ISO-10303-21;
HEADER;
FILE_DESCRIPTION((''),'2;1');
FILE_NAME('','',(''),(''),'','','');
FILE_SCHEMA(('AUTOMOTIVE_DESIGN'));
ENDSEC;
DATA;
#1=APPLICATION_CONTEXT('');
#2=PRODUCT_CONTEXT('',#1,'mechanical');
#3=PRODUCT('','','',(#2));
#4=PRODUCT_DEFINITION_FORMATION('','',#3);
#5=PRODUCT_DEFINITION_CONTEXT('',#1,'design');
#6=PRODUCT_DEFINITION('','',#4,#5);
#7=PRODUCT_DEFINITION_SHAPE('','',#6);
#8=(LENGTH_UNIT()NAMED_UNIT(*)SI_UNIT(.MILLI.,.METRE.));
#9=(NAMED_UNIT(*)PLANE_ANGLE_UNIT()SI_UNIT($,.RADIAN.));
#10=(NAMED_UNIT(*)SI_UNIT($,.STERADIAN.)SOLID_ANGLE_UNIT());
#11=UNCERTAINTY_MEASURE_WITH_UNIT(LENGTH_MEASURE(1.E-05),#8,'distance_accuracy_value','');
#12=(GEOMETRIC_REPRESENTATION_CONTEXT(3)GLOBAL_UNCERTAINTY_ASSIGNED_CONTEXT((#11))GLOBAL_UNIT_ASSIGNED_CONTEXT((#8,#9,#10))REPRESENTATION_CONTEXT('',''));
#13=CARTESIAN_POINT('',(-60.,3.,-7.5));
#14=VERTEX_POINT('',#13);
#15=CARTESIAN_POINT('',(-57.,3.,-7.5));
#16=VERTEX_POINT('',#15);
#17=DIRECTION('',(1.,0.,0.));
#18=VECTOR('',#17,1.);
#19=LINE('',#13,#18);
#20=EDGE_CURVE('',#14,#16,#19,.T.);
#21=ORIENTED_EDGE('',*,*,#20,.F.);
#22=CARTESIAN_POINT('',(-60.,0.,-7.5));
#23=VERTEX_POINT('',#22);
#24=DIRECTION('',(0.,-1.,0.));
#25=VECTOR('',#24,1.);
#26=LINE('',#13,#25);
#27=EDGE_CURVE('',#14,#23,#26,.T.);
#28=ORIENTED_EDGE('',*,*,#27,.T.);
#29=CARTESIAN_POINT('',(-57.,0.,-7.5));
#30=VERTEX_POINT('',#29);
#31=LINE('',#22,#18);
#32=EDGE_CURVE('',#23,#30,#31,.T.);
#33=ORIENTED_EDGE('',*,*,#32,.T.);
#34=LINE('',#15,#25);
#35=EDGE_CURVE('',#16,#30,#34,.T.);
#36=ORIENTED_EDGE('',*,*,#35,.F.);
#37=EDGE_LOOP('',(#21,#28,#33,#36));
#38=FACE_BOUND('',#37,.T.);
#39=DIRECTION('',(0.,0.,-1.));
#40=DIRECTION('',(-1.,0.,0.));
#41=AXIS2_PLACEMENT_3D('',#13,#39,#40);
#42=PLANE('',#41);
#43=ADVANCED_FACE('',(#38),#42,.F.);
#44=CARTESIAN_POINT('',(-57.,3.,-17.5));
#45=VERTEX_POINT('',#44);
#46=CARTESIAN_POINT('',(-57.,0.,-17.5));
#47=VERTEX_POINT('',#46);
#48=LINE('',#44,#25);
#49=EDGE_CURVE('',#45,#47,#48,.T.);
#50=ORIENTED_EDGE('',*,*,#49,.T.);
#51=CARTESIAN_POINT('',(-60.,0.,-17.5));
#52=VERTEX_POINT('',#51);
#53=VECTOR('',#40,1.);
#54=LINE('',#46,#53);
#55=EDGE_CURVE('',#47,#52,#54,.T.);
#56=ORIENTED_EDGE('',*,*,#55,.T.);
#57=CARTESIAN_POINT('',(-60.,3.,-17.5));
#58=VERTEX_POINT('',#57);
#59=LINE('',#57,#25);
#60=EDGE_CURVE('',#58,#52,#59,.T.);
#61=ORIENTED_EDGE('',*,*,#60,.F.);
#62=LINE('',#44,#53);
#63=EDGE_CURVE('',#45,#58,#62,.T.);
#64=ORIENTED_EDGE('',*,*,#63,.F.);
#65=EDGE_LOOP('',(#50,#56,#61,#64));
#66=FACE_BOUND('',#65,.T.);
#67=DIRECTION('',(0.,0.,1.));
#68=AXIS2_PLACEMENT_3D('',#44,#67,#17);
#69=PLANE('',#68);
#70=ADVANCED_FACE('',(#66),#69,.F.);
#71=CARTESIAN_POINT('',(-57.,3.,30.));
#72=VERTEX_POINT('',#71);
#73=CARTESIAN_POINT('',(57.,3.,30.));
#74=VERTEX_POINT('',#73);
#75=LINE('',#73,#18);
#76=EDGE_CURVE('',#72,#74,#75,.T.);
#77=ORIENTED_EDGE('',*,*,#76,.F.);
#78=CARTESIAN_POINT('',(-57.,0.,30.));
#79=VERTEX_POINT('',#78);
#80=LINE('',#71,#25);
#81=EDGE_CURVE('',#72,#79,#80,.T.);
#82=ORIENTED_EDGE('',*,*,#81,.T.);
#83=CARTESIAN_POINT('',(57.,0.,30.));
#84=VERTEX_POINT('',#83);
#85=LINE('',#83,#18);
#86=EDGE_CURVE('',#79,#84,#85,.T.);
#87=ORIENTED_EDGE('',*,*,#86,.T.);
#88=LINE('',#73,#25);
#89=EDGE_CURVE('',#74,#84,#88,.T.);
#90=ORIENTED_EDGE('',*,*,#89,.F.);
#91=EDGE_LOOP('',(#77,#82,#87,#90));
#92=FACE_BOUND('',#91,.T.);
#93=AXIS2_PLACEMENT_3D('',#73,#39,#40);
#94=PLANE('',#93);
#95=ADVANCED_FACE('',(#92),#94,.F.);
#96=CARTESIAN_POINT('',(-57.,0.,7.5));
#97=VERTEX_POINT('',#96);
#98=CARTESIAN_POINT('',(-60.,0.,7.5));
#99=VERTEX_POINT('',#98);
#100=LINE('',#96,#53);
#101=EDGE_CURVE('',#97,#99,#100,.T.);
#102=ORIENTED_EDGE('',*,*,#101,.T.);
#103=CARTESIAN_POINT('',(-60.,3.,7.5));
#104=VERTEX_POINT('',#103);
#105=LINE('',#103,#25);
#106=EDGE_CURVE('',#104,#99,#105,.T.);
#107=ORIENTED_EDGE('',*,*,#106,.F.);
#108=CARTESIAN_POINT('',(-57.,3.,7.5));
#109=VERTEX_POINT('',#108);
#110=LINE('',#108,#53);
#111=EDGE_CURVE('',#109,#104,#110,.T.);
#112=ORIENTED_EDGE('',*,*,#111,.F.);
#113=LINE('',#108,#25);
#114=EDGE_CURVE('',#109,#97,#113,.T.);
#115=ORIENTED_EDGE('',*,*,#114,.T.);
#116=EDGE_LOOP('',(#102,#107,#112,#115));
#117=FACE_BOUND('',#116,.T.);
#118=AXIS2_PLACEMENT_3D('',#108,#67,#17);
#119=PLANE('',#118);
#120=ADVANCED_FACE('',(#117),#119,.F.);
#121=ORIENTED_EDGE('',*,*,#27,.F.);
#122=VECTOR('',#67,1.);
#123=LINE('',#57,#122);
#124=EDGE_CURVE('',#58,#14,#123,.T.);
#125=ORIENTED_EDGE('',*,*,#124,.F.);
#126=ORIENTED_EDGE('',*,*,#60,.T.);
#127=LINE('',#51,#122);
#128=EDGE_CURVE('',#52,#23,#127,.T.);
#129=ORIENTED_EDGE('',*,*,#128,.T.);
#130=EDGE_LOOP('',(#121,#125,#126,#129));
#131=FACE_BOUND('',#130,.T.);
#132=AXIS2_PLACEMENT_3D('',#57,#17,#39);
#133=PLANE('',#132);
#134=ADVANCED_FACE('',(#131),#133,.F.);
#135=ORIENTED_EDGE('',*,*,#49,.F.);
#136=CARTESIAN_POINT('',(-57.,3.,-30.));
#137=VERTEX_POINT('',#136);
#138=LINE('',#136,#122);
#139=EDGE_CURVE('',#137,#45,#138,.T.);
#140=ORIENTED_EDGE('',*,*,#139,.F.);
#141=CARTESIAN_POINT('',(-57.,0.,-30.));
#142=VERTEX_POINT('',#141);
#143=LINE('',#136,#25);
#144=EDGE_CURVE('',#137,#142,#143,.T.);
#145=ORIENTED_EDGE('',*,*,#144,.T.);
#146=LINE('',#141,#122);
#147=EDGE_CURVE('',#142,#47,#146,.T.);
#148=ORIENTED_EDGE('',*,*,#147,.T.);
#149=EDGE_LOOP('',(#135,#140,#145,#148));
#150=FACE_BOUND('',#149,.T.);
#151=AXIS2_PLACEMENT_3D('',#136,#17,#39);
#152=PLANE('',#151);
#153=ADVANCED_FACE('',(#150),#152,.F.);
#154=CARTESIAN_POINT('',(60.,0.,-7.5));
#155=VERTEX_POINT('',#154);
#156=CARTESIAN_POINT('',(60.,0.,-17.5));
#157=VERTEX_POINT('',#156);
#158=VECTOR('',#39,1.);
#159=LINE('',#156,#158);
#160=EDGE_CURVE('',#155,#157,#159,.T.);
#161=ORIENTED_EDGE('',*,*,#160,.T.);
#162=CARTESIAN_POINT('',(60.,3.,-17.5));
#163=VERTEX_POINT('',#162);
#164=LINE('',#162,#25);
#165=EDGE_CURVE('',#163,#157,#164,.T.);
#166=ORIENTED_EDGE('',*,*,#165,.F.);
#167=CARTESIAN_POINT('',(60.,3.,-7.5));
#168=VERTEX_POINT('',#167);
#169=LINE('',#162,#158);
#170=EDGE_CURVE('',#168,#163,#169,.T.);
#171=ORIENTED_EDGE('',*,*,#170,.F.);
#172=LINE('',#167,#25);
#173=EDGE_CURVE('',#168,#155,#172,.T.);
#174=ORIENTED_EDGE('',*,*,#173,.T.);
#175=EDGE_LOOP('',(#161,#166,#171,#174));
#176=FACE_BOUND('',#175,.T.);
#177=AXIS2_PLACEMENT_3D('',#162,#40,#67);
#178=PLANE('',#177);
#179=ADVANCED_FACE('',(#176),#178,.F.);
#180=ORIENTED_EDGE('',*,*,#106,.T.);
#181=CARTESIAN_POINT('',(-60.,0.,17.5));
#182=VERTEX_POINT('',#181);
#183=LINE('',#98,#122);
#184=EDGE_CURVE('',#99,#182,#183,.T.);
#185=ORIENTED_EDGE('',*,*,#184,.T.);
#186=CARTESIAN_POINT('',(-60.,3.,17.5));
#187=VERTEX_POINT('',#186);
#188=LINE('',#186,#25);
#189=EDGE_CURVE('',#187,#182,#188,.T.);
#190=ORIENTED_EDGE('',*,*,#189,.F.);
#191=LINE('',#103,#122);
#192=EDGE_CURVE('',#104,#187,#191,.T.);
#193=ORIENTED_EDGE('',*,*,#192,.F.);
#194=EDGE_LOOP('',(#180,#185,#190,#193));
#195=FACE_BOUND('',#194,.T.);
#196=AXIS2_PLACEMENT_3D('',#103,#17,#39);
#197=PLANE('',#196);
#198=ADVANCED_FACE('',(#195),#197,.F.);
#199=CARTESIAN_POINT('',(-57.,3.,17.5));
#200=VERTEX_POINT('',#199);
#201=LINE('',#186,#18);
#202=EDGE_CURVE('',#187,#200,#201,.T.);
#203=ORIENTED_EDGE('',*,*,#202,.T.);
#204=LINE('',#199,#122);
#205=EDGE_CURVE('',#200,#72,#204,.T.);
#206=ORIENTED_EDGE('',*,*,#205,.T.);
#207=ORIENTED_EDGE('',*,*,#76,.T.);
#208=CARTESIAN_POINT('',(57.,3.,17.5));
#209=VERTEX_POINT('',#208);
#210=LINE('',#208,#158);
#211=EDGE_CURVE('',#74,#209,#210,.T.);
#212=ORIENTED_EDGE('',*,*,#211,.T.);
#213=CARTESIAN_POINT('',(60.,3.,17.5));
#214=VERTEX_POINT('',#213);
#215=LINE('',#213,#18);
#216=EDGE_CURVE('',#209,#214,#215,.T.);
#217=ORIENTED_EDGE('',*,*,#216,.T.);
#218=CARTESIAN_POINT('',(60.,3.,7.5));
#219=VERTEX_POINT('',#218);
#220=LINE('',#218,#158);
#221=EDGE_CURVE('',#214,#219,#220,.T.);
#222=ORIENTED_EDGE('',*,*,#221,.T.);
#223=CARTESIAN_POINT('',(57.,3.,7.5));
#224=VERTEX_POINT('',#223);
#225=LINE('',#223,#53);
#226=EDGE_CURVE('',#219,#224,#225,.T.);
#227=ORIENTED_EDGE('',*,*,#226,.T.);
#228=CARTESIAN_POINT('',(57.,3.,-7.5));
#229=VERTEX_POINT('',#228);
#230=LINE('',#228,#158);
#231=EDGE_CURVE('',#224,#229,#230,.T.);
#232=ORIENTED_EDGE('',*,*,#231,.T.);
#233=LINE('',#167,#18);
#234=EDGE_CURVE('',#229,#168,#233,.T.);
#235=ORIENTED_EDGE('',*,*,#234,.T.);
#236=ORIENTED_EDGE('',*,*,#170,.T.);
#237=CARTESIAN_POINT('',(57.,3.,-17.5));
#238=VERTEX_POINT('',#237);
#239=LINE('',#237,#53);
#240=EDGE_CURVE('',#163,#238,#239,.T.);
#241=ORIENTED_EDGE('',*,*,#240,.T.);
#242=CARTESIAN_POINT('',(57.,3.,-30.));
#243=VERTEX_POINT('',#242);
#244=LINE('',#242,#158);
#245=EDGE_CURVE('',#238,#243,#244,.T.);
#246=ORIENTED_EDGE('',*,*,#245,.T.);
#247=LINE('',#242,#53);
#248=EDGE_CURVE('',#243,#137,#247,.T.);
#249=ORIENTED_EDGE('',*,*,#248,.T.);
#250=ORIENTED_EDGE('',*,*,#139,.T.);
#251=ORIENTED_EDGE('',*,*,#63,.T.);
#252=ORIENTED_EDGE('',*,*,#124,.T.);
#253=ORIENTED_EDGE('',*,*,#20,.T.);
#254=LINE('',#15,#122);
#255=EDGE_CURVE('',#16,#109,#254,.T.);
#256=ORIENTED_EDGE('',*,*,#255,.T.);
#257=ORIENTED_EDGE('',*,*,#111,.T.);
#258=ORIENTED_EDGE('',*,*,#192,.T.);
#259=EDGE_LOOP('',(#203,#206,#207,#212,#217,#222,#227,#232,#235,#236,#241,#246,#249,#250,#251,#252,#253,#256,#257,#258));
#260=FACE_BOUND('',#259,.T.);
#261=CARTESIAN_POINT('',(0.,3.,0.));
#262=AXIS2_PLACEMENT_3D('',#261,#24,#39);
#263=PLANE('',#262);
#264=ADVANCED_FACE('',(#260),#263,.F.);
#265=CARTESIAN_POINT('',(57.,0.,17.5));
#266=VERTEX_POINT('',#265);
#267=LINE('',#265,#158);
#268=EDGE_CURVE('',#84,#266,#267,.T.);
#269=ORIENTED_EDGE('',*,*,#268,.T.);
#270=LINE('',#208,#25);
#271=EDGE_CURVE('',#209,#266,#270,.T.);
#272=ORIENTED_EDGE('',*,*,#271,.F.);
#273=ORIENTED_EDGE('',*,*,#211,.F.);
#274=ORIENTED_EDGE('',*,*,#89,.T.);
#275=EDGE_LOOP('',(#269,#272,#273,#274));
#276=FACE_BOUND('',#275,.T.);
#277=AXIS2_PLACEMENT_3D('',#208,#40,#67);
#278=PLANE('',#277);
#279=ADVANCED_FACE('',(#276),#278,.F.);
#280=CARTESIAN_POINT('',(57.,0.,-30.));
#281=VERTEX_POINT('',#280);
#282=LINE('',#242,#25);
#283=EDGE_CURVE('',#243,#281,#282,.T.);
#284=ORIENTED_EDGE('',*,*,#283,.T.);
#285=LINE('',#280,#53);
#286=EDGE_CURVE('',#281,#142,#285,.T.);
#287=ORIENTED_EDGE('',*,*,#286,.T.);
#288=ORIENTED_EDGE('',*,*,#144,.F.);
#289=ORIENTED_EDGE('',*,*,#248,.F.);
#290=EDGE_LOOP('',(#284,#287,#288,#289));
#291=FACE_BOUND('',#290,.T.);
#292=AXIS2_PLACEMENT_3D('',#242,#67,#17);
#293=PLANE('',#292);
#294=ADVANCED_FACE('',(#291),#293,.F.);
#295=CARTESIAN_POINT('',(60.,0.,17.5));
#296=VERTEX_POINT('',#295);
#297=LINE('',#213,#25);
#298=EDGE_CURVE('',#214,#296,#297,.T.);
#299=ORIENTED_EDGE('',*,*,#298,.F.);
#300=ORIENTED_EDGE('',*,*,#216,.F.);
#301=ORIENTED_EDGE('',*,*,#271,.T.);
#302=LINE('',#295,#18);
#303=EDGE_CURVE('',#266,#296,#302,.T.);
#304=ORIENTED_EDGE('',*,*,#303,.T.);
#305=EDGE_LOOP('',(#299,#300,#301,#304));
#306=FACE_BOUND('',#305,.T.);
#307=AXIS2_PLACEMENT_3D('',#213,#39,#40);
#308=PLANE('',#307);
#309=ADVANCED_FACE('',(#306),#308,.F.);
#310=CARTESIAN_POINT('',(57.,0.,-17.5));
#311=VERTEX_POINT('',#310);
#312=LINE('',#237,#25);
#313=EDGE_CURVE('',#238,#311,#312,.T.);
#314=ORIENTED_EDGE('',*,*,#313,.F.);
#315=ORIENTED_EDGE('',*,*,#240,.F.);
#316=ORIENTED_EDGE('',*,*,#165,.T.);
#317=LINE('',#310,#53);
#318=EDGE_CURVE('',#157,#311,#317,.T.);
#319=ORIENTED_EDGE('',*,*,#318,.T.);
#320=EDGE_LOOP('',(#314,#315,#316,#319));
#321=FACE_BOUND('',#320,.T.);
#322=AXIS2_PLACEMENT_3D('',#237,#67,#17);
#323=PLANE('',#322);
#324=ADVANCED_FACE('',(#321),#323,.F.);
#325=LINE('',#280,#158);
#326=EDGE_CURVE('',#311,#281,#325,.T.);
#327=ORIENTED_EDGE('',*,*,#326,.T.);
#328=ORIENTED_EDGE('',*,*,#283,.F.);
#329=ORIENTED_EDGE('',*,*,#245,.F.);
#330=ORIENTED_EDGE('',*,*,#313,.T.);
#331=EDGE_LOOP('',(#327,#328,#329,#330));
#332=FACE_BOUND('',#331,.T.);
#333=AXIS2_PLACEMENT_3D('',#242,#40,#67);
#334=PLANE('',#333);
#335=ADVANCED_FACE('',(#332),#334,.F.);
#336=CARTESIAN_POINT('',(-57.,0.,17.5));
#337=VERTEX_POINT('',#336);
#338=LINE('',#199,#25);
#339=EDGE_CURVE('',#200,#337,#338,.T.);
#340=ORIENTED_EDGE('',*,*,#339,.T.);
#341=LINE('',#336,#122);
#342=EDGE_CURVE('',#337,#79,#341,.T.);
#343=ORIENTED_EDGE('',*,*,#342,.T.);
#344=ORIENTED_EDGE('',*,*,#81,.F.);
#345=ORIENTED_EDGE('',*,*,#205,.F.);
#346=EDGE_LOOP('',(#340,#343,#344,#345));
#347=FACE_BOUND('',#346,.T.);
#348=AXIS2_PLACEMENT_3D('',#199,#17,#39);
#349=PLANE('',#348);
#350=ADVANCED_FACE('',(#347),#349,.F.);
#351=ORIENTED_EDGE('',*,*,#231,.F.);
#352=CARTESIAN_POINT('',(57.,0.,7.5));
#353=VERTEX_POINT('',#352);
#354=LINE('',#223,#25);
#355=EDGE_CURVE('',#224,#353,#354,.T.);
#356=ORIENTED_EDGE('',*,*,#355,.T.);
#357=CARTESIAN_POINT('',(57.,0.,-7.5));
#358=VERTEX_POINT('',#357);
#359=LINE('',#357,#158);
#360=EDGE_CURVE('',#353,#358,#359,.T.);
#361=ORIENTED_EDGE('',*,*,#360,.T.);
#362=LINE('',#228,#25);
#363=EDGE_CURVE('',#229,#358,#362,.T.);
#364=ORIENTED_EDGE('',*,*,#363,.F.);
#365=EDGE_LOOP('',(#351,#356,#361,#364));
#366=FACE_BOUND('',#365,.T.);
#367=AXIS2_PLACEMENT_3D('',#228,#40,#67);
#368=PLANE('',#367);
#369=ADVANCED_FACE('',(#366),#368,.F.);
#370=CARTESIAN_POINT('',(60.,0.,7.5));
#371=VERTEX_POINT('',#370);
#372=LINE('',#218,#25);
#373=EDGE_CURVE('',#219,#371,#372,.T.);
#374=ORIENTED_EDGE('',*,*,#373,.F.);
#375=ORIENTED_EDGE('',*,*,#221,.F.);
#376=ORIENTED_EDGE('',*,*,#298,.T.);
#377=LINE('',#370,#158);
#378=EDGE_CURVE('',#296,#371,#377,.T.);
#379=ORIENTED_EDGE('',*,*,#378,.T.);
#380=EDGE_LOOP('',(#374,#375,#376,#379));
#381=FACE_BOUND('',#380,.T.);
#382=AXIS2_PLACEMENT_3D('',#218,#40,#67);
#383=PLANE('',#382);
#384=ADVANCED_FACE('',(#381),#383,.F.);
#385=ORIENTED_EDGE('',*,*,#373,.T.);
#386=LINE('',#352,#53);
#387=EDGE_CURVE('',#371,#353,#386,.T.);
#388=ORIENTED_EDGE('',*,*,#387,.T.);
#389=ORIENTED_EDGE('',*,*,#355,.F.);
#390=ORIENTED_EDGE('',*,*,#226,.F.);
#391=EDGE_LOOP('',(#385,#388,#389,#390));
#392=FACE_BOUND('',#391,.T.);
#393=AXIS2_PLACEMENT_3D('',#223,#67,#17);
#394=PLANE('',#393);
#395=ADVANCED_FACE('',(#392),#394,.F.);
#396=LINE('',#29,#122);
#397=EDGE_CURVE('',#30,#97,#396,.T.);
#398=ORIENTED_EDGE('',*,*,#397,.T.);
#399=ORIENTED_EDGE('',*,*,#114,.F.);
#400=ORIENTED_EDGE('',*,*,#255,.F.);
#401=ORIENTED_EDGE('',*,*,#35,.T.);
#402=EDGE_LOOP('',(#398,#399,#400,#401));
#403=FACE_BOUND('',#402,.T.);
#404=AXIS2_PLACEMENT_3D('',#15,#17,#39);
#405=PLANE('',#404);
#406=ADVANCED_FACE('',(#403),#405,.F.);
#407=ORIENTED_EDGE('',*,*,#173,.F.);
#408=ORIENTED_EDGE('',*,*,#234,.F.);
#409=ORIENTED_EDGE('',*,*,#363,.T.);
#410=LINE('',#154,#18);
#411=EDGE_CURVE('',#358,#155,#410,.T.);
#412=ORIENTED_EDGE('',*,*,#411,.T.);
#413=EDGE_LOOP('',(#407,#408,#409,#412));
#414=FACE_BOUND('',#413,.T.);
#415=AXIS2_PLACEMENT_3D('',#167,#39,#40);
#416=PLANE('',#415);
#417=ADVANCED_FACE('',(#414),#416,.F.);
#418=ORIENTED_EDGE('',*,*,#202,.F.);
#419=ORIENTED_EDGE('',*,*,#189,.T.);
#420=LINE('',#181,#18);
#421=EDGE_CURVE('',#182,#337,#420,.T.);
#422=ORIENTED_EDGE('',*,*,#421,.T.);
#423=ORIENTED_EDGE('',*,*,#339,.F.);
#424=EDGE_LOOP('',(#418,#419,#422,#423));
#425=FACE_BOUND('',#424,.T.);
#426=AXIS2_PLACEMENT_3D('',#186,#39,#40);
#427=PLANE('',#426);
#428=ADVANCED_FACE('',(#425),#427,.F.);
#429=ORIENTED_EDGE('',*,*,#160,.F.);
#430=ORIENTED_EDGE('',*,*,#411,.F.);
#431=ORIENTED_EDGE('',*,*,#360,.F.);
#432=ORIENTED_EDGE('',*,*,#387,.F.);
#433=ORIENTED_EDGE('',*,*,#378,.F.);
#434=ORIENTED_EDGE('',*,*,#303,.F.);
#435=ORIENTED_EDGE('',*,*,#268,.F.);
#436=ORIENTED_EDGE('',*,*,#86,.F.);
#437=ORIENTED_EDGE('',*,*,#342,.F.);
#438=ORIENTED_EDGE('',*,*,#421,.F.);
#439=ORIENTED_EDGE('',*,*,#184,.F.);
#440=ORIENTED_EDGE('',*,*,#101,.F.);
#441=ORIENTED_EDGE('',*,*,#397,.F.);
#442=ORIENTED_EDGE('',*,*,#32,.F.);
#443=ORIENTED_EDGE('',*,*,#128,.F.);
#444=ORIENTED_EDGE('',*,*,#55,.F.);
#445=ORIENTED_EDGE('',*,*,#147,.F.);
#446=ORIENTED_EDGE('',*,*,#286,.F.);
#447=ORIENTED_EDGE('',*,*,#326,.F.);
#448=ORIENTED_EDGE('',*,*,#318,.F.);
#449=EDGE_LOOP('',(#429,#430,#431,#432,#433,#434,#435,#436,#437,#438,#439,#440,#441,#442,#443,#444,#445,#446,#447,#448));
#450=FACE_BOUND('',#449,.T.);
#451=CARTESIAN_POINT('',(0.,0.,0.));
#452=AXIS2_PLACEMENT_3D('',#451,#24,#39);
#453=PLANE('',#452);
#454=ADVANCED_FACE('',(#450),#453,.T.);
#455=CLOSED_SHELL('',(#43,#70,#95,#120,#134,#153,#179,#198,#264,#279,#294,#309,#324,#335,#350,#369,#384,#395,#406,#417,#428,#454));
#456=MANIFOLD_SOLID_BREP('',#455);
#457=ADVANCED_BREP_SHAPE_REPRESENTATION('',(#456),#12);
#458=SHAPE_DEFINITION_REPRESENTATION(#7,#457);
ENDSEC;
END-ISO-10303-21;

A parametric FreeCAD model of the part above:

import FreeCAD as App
import Part
import Sketcher
Q = App.Units.Quantity

doc = App.newDocument("Part")
params = doc.addObject("Spreadsheet::Sheet", "Params")
for row, (alias, value) in enumerate([
    ("sketch1_width", "3 mm"),
    ("sketch1_width2", "114 mm"),
    ("sketch1_height", "10 mm"),
    ("sketch1_height2", "15 mm"),
    ("sketch1_height3", "12.5 mm"),
    ("pad1_length", "3 mm"),
], start=1):
    params.set(f"A{row}", alias)
    params.set(f"B{row}", "=" + value)
    params.setAlias(f"B{row}", alias)

body = doc.addObject("PartDesign::Body", "Body")

# Sketch on XZ plane
sketch1 = body.newObject("Sketcher::SketchObject", "Sketch")
sketch1.AttachmentSupport = (doc.getObject("XZ_Plane"), [""])
sketch1.MapMode = "FlatFace"
sketch1.addGeometry([
    Part.LineSegment(App.Vector(-57, -17.5, 0), App.Vector(-60, -17.5, 0)),  # 0
    Part.LineSegment(App.Vector(-60, -17.5, 0), App.Vector(-60, -7.5, 0)),  # 1
    Part.LineSegment(App.Vector(-60, -7.5, 0), App.Vector(-57, -7.5, 0)),  # 2
    Part.LineSegment(App.Vector(-57, -7.5, 0), App.Vector(-57, 7.5, 0)),  # 3
    Part.LineSegment(App.Vector(-57, 7.5, 0), App.Vector(-60, 7.5, 0)),  # 4
    Part.LineSegment(App.Vector(-60, 7.5, 0), App.Vector(-60, 17.5, 0)),  # 5
    Part.LineSegment(App.Vector(-60, 17.5, 0), App.Vector(-57, 17.5, 0)),  # 6
    Part.LineSegment(App.Vector(-57, 17.5, 0), App.Vector(-57, 30, 0)),  # 7
    Part.LineSegment(App.Vector(-57, 30, 0), App.Vector(57, 30, 0)),  # 8
    Part.LineSegment(App.Vector(57, 30, 0), App.Vector(57, 17.5, 0)),  # 9
    Part.LineSegment(App.Vector(57, 17.5, 0), App.Vector(60, 17.5, 0)),  # 10
    Part.LineSegment(App.Vector(60, 17.5, 0), App.Vector(60, 7.5, 0)),  # 11
    Part.LineSegment(App.Vector(60, 7.5, 0), App.Vector(57, 7.5, 0)),  # 12
    Part.LineSegment(App.Vector(57, 7.5, 0), App.Vector(57, -7.5, 0)),  # 13
    Part.LineSegment(App.Vector(57, -7.5, 0), App.Vector(60, -7.5, 0)),  # 14
    Part.LineSegment(App.Vector(60, -7.5, 0), App.Vector(60, -17.5, 0)),  # 15
    Part.LineSegment(App.Vector(60, -17.5, 0), App.Vector(57, -17.5, 0)),  # 16
    Part.LineSegment(App.Vector(57, -17.5, 0), App.Vector(57, -30, 0)),  # 17
    Part.LineSegment(App.Vector(57, -30, 0), App.Vector(-57, -30, 0)),  # 18
    Part.LineSegment(App.Vector(-57, -30, 0), App.Vector(-57, -17.5, 0)),  # 19
], False)
sketch1.addConstraint([
    Sketcher.Constraint("Coincident", 0, 2, 1, 1),
    Sketcher.Constraint("Coincident", 1, 2, 2, 1),
    Sketcher.Constraint("Coincident", 2, 2, 3, 1),
    Sketcher.Constraint("Coincident", 3, 2, 4, 1),
    Sketcher.Constraint("Coincident", 4, 2, 5, 1),
    Sketcher.Constraint("Coincident", 5, 2, 6, 1),
    Sketcher.Constraint("Coincident", 6, 2, 7, 1),
    Sketcher.Constraint("Coincident", 7, 2, 8, 1),
    Sketcher.Constraint("Coincident", 8, 2, 9, 1),
    Sketcher.Constraint("Coincident", 9, 2, 10, 1),
    Sketcher.Constraint("Coincident", 10, 2, 11, 1),
    Sketcher.Constraint("Coincident", 11, 2, 12, 1),
    Sketcher.Constraint("Coincident", 12, 2, 13, 1),
    Sketcher.Constraint("Coincident", 13, 2, 14, 1),
    Sketcher.Constraint("Coincident", 14, 2, 15, 1),
    Sketcher.Constraint("Coincident", 15, 2, 16, 1),
    Sketcher.Constraint("Coincident", 16, 2, 17, 1),
    Sketcher.Constraint("Coincident", 17, 2, 18, 1),
    Sketcher.Constraint("Coincident", 18, 2, 19, 1),
    Sketcher.Constraint("Coincident", 19, 2, 0, 1),
    Sketcher.Constraint("Horizontal", 0),
    Sketcher.Constraint("Vertical", 1),
    Sketcher.Constraint("Horizontal", 2),
    Sketcher.Constraint("Vertical", 3),
    Sketcher.Constraint("Horizontal", 4),
    Sketcher.Constraint("Vertical", 5),
    Sketcher.Constraint("Horizontal", 6),
    Sketcher.Constraint("Vertical", 7),
    Sketcher.Constraint("Horizontal", 8),
    Sketcher.Constraint("Vertical", 9),
    Sketcher.Constraint("Horizontal", 10),
    Sketcher.Constraint("Vertical", 11),
    Sketcher.Constraint("Horizontal", 12),
    Sketcher.Constraint("Vertical", 13),
    Sketcher.Constraint("Horizontal", 14),
    Sketcher.Constraint("Vertical", 15),
    Sketcher.Constraint("Horizontal", 16),
    Sketcher.Constraint("Vertical", 17),
    Sketcher.Constraint("Horizontal", 18),
    Sketcher.Constraint("Vertical", 19),
    Sketcher.Constraint("Symmetric", 0, 2, 10, 2, -1, 1),
    Sketcher.Constraint("Symmetric", 2, 2, 12, 2, -1, 1),
    Sketcher.Constraint("Symmetric", 4, 2, 14, 2, -1, 1),
    Sketcher.Constraint("Symmetric", 6, 2, 16, 2, -1, 1),
    Sketcher.Constraint("Symmetric", 8, 2, 18, 2, -1, 1),
    Sketcher.Constraint("Symmetric", 6, 2, 9, 2, -2),
    Sketcher.Constraint("Symmetric", 4, 2, 11, 2, -2),
    Sketcher.Constraint("Vertical", 3, 2, 6, 2),
    Sketcher.Constraint("DistanceX", 0, 2, 0, 1, Q("3 mm")),
    Sketcher.Constraint("DistanceX", 8, 1, 8, 2, Q("114 mm")),
    Sketcher.Constraint("DistanceY", 1, 1, 1, 2, Q("10 mm")),
    Sketcher.Constraint("DistanceY", 3, 1, 3, 2, Q("15 mm")),
    Sketcher.Constraint("DistanceY", 7, 1, 7, 2, Q("12.5 mm")),
])
sketch1.setExpression("Constraints[48]", "Params.sketch1_width")
sketch1.setExpression("Constraints[49]", "Params.sketch1_width2")
sketch1.setExpression("Constraints[50]", "Params.sketch1_height")
sketch1.setExpression("Constraints[51]", "Params.sketch1_height2")
sketch1.setExpression("Constraints[52]", "Params.sketch1_height3")
pad1 = body.newObject("PartDesign::Pad", "Pad")
pad1.Profile = sketch1
pad1.setExpression("Length", "Params.pad1_length")
pad1.Reversed = True

doc.recompute()
